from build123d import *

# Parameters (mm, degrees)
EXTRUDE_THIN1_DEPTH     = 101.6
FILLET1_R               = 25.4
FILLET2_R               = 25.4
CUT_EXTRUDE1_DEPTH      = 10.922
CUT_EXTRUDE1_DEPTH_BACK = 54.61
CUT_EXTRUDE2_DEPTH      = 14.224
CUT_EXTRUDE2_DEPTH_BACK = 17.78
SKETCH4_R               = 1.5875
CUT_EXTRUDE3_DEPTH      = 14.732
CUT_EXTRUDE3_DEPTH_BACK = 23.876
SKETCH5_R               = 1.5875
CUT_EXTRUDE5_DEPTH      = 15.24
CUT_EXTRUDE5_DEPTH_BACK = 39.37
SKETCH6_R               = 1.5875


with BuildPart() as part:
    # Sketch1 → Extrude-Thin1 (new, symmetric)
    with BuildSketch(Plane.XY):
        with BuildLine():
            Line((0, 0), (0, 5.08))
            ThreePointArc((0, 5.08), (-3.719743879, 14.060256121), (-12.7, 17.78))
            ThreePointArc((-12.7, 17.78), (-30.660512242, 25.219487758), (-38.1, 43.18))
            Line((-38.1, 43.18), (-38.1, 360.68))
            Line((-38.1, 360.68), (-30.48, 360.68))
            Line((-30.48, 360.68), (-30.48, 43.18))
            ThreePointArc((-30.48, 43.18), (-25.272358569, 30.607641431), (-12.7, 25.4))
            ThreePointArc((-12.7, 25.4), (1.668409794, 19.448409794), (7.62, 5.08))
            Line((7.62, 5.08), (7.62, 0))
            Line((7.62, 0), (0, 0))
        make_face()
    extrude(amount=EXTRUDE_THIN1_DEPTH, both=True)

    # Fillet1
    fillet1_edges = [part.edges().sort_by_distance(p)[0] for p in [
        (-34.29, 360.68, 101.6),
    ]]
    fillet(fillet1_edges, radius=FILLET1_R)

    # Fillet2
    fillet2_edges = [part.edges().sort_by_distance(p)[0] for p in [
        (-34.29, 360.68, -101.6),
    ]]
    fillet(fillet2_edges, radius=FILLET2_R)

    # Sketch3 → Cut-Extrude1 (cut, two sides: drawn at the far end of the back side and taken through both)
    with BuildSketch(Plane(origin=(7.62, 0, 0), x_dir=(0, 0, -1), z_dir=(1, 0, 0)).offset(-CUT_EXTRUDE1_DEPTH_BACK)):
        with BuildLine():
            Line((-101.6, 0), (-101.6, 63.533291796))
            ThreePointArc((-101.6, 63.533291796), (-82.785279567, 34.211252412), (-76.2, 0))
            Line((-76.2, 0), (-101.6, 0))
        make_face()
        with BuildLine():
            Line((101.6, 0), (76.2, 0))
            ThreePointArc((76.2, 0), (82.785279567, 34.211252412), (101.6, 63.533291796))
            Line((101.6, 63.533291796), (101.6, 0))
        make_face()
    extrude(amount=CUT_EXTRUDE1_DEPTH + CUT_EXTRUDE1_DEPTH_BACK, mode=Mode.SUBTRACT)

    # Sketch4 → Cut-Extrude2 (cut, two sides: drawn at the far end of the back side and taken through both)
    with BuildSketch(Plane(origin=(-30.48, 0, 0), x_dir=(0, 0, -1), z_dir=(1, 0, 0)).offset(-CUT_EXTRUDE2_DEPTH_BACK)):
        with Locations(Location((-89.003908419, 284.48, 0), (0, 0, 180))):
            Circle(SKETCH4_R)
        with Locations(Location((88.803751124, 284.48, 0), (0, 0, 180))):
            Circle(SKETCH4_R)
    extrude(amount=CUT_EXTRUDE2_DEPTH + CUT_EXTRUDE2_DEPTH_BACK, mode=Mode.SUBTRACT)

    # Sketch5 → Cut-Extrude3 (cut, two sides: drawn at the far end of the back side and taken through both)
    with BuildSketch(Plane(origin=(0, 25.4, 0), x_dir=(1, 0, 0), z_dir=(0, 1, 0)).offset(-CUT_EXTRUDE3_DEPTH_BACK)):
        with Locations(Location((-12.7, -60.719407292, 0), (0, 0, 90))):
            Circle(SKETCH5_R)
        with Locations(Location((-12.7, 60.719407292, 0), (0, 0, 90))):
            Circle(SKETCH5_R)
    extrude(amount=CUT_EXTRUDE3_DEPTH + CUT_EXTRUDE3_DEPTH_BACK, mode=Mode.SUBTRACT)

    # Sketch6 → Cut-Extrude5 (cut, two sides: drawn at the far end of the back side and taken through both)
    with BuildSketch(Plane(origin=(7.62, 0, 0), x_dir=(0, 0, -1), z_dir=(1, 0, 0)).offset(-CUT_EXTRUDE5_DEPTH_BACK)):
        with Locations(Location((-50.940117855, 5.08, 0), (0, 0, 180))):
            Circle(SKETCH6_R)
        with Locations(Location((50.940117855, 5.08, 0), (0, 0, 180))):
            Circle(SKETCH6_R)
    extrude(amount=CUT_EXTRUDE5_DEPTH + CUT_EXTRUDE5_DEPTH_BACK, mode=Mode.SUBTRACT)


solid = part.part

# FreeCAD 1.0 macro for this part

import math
import FreeCAD as App
import Part
import Sketcher
from FreeCAD import Vector
Q = App.Units.Quantity


def edges_at(feature, points):
    """Names of the edges that pass closest to the given points."""
    edges = feature.Shape.Edges
    near = lambda p: min(range(len(edges)), key=lambda i: edges[i].distToShape(Part.Vertex(*p))[0])
    return sorted({f"Edge{near(p) + 1}" for p in points})

doc = App.newDocument("Part")
params = doc.addObject("Spreadsheet::Sheet", "Params")
for row, (alias, value) in enumerate([
    ("sketch1_radius", "1 in"),
    ("sketch1_radius2", "0.8 in"),
    ("sketch1_radius3", "0.7 in"),
    ("sketch1_height", "0.2 in"),
    ("sketch1_height2", "12.5 in"),
    ("pad1_length", "8 in"),
    ("fillet_radius", "1 in"),
    ("fillet2_radius", "1 in"),
    ("sketch2_height", "1 in"),
    ("sketch3_diameter", "0.125 in"),
    ("sketch4_diameter", "0.125 in"),
    ("sketch5_diameter", "0.125 in"),
], start=1):
    params.set(f"A{row}", alias)
    params.set(f"B{row}", "=" + value)
    params.setAlias(f"B{row}", alias)

body = doc.addObject("PartDesign::Body", "Body")

sketch1 = body.newObject("Sketcher::SketchObject", "Sketch")
sketch1.AttachmentSupport = (doc.getObject("XY_Plane"), [""])
sketch1.MapMode = "FlatFace"
sketch1.addGeometry(Part.LineSegment(Vector(0, 5, 0), Vector(0, 0, 0)), False)
sketch1.addGeometry(Part.LineSegment(Vector(0, 0, 0), Vector(8, 0, 0)), False)
sketch1.addGeometry(Part.LineSegment(Vector(8, 0, 0), Vector(8, 5, 0)), False)
sketch1.addGeometry(Part.ArcOfCircle(Part.Circle(Vector(-13, 5, 0), Vector(0, 0, 1), 20), math.radians(0), math.radians(90)), False)
sketch1.addGeometry(Part.ArcOfCircle(Part.Circle(Vector(-13, 43, 0), Vector(0, 0, 1), 18), math.radians(-180), math.radians(-90)), False)
sketch1.addGeometry(Part.LineSegment(Vector(-30, 43, 0), Vector(-30, 361, 0)), False)
sketch1.addGeometry(Part.LineSegment(Vector(-30, 361, 0), Vector(-38, 361, 0)), False)
sketch1.addGeometry(Part.LineSegment(Vector(-38, 361, 0), Vector(-38, 43, 0)), False)
sketch1.addGeometry(Part.ArcOfCircle(Part.Circle(Vector(-13, 43, 0), Vector(0, 0, 1), 25), math.radians(180), math.radians(270)), False)
sketch1.addGeometry(Part.ArcOfCircle(Part.Circle(Vector(-13, 5, 0), Vector(0, 0, 1), 13), math.radians(0), math.radians(90)), False)
sketch1.addConstraint(Sketcher.Constraint("Coincident", 0, 2, 1, 1))
sketch1.addConstraint(Sketcher.Constraint("Coincident", 1, 2, 2, 1))
sketch1.addConstraint(Sketcher.Constraint("Tangent", 2, 2, 3, 1))
sketch1.addConstraint(Sketcher.Constraint("Tangent", 3, 2, 4, 2))
sketch1.addConstraint(Sketcher.Constraint("Tangent", 4, 1, 5, 1))
sketch1.addConstraint(Sketcher.Constraint("Coincident", 5, 2, 6, 1))
sketch1.addConstraint(Sketcher.Constraint("Coincident", 6, 2, 7, 1))
sketch1.addConstraint(Sketcher.Constraint("Tangent", 7, 2, 8, 1))
sketch1.addConstraint(Sketcher.Constraint("Tangent", 8, 2, 9, 2))
sketch1.addConstraint(Sketcher.Constraint("Tangent", 9, 1, 0, 1))
sketch1.addConstraint(Sketcher.Constraint("Vertical", 0))
sketch1.addConstraint(Sketcher.Constraint("Horizontal", 1))
sketch1.addConstraint(Sketcher.Constraint("Vertical", 2))
sketch1.addConstraint(Sketcher.Constraint("Vertical", 5))
sketch1.addConstraint(Sketcher.Constraint("Horizontal", 6))
sketch1.addConstraint(Sketcher.Constraint("Vertical", 7))
sketch1.addConstraint(Sketcher.Constraint("Coincident", 0, 2, -1, 1))
sketch1.addConstraint(Sketcher.Constraint("Coincident", 8, 3, 4, 3))
sketch1.addConstraint(Sketcher.Constraint("Coincident", 9, 3, 3, 3))
sketch1.addConstraint(Sketcher.Constraint("Vertical", 3, 3, 4, 3))
sketch1.addConstraint(Sketcher.Constraint("Radius", 8, Q("1 in")))
sketch1.addConstraint(Sketcher.Constraint("Radius", 3, Q("0.8 in")))
sketch1.addConstraint(Sketcher.Constraint("Radius", 4, Q("0.7 in")))
sketch1.addConstraint(Sketcher.Constraint("DistanceY", 0, 2, 0, 1, Q("0.2 in")))
sketch1.addConstraint(Sketcher.Constraint("DistanceY", 5, 1, 5, 2, Q("12.5 in")))
sketch1.setExpression("Constraints[20]", "Params.sketch1_radius")
sketch1.setExpression("Constraints[21]", "Params.sketch1_radius2")
sketch1.setExpression("Constraints[22]", "Params.sketch1_radius3")
sketch1.setExpression("Constraints[23]", "Params.sketch1_height")
sketch1.setExpression("Constraints[24]", "Params.sketch1_height2")
pad1 = body.newObject("PartDesign::Pad", "Pad")
pad1.Profile = sketch1
pad1.setExpression("Length", "Params.pad1_length")
pad1.Midplane = True
doc.recompute()

fillet = body.newObject("PartDesign::Fillet", "Fillet")
fillet.Base = (pad1, edges_at(pad1, [(-34.29, 360.68, 101.6)]))
fillet.setExpression("Radius", "Params.fillet_radius")
doc.recompute()

fillet2 = body.newObject("PartDesign::Fillet", "Fillet001")
fillet2.Base = (fillet, edges_at(fillet, [(-34.29, 360.68, -101.6)]))
fillet2.setExpression("Radius", "Params.fillet2_radius")

sketch2 = body.newObject("Sketcher::SketchObject", "Sketch001")
sketch2.AttachmentSupport = (doc.getObject("YZ_Plane"), [""])
sketch2.MapMode = "FlatFace"
sketch2.AttachmentOffset = App.Placement(Vector(0, 0, 0.3 * 25.4), App.Rotation())
sketch2.addGeometry(Part.LineSegment(Vector(64, 102, 0), Vector(0, 102, 0)), False)
sketch2.addGeometry(Part.LineSegment(Vector(0, 102, 0), Vector(0, 76, 0)), False)
sketch2.addGeometry(Part.ArcOfCircle(Part.Circle(Vector(0, 168, 0), Vector(0, 0, 1), 92), math.radians(-90), math.radians(-46)), False)
sketch2.addGeometry(Part.LineSegment(Vector(0, -76, 0), Vector(0, -102, 0)), False)
sketch2.addGeometry(Part.LineSegment(Vector(0, -102, 0), Vector(64, -102, 0)), False)
sketch2.addGeometry(Part.ArcOfCircle(Part.Circle(Vector(0, -168, 0), Vector(0, 0, 1), 92), math.radians(46), math.radians(90)), False)
sketch2.addConstraint(Sketcher.Constraint("Coincident", 0, 2, 1, 1))
sketch2.addConstraint(Sketcher.Constraint("Coincident", 1, 2, 2, 1))
sketch2.addConstraint(Sketcher.Constraint("Coincident", 2, 2, 0, 1))
sketch2.addConstraint(Sketcher.Constraint("Coincident", 3, 2, 4, 1))
sketch2.addConstraint(Sketcher.Constraint("Coincident", 4, 2, 5, 1))
sketch2.addConstraint(Sketcher.Constraint("Coincident", 5, 2, 3, 1))
sketch2.addConstraint(Sketcher.Constraint("Horizontal", 0))
sketch2.addConstraint(Sketcher.Constraint("Vertical", 1))
sketch2.addConstraint(Sketcher.Constraint("Vertical", 3))
sketch2.addConstraint(Sketcher.Constraint("Horizontal", 4))
sketch2.addConstraint(Sketcher.Constraint("Equal", 2, 5))
sketch2.addConstraint(Sketcher.Constraint("Symmetric", 2, 3, 5, 3, -1, 1))
sketch2.addConstraint(Sketcher.Constraint("Symmetric", 0, 2, 3, 2, -1, 1))
sketch2.addConstraint(Sketcher.Constraint("PointOnObject", 2, 3, -2))
sketch2.addConstraint(Sketcher.Constraint("PointOnObject", 0, 2, -2))
sketch2.addConstraint(Sketcher.Constraint("DistanceY", 1, 2, 1, 1, Q("1 in")))
sketch2.addConstraint(Sketcher.Constraint("DistanceY", -1, 1, 0, 2, Q("4 in")))
sketch2.addConstraint(Sketcher.Constraint("Radius", 2, 92.158251))
sketch2.setExpression("Constraints[15]", "Params.sketch2_height")
pocket1 = body.newObject("PartDesign::Pocket", "Pocket")
pocket1.Profile = sketch2
pocket1.Type = "ThroughAll"
pocket1.Midplane = True

sketch3 = body.newObject("Sketcher::SketchObject", "Sketch002")
sketch3.AttachmentSupport = (doc.getObject("YZ_Plane"), [""])
sketch3.MapMode = "FlatFace"
sketch3.AttachmentOffset = App.Placement(Vector(0, 0, -1.2 * 25.4), App.Rotation())
sketch3.addGeometry(Part.Circle(Vector(284.5, 89, 0), Vector(0, 0, 1), 1.6), False)
sketch3.addGeometry(Part.Circle(Vector(284.5, -88.8, 0), Vector(0, 0, 1), 1.6), False)
sketch3.addConstraint(Sketcher.Constraint("Equal", 0, 1))
sketch3.addConstraint(Sketcher.Constraint("Vertical", 0, 3, 1, 3))
sketch3.addConstraint(Sketcher.Constraint("Diameter", 0, Q("0.125 in")))
sketch3.addConstraint(Sketcher.Constraint("DistanceX", -1, 1, 0, 3, Q("11.2 in")))
sketch3.addConstraint(Sketcher.Constraint("DistanceY", -1, 1, 0, 3, 89.003908))
sketch3.addConstraint(Sketcher.Constraint("DistanceY", 1, 3, -1, 1, 88.803751))
sketch3.setExpression("Constraints[2]", "Params.sketch3_diameter")
pocket2 = body.newObject("PartDesign::Pocket", "Pocket001")
pocket2.Profile = sketch3
pocket2.Type = "ThroughAll"
pocket2.Midplane = True

sketch4 = body.newObject("Sketcher::SketchObject", "Sketch003")
sketch4.AttachmentSupport = (doc.getObject("XZ_Plane"), [""])
sketch4.MapMode = "FlatFace"
sketch4.AttachmentOffset = App.Placement(Vector(0, 0, -1 * 25.4), App.Rotation())
sketch4.addGeometry(Part.Circle(Vector(-12.7, 60.7, 0), Vector(0, 0, 1), 1.6), False)
sketch4.addGeometry(Part.Circle(Vector(-12.7, -60.7, 0), Vector(0, 0, 1), 1.6), False)
sketch4.addConstraint(Sketcher.Constraint("Equal", 0, 1))
sketch4.addConstraint(Sketcher.Constraint("Symmetric", 0, 3, 1, 3, -1))
sketch4.addConstraint(Sketcher.Constraint("Diameter", 0, Q("0.125 in")))
sketch4.addConstraint(Sketcher.Constraint("DistanceX", 0, 3, -1, 1, Q("0.5 in")))
sketch4.addConstraint(Sketcher.Constraint("DistanceY", -1, 1, 0, 3, 60.719407))
sketch4.setExpression("Constraints[2]", "Params.sketch4_diameter")
pocket3 = body.newObject("PartDesign::Pocket", "Pocket002")
pocket3.Profile = sketch4
pocket3.Type = "ThroughAll"
pocket3.Midplane = True

sketch5 = body.newObject("Sketcher::SketchObject", "Sketch004")
sketch5.AttachmentSupport = (doc.getObject("YZ_Plane"), [""])
sketch5.MapMode = "FlatFace"
sketch5.AttachmentOffset = App.Placement(Vector(0, 0, 0.3 * 25.4), App.Rotation())
sketch5.addGeometry(Part.Circle(Vector(5.1, 50.9, 0), Vector(0, 0, 1), 1.6), False)
sketch5.addGeometry(Part.Circle(Vector(5.1, -50.9, 0), Vector(0, 0, 1), 1.6), False)
sketch5.addConstraint(Sketcher.Constraint("Equal", 0, 1))
sketch5.addConstraint(Sketcher.Constraint("Symmetric", 0, 3, 1, 3, -1))
sketch5.addConstraint(Sketcher.Constraint("Diameter", 0, Q("0.125 in")))
sketch5.addConstraint(Sketcher.Constraint("DistanceX", -1, 1, 0, 3, Q("0.2 in")))
sketch5.addConstraint(Sketcher.Constraint("DistanceY", -1, 1, 0, 3, 50.940118))
sketch5.setExpression("Constraints[2]", "Params.sketch5_diameter")
pocket4 = body.newObject("PartDesign::Pocket", "Pocket003")
pocket4.Profile = sketch5
pocket4.Type = "ThroughAll"
pocket4.Midplane = True

doc.recompute()
